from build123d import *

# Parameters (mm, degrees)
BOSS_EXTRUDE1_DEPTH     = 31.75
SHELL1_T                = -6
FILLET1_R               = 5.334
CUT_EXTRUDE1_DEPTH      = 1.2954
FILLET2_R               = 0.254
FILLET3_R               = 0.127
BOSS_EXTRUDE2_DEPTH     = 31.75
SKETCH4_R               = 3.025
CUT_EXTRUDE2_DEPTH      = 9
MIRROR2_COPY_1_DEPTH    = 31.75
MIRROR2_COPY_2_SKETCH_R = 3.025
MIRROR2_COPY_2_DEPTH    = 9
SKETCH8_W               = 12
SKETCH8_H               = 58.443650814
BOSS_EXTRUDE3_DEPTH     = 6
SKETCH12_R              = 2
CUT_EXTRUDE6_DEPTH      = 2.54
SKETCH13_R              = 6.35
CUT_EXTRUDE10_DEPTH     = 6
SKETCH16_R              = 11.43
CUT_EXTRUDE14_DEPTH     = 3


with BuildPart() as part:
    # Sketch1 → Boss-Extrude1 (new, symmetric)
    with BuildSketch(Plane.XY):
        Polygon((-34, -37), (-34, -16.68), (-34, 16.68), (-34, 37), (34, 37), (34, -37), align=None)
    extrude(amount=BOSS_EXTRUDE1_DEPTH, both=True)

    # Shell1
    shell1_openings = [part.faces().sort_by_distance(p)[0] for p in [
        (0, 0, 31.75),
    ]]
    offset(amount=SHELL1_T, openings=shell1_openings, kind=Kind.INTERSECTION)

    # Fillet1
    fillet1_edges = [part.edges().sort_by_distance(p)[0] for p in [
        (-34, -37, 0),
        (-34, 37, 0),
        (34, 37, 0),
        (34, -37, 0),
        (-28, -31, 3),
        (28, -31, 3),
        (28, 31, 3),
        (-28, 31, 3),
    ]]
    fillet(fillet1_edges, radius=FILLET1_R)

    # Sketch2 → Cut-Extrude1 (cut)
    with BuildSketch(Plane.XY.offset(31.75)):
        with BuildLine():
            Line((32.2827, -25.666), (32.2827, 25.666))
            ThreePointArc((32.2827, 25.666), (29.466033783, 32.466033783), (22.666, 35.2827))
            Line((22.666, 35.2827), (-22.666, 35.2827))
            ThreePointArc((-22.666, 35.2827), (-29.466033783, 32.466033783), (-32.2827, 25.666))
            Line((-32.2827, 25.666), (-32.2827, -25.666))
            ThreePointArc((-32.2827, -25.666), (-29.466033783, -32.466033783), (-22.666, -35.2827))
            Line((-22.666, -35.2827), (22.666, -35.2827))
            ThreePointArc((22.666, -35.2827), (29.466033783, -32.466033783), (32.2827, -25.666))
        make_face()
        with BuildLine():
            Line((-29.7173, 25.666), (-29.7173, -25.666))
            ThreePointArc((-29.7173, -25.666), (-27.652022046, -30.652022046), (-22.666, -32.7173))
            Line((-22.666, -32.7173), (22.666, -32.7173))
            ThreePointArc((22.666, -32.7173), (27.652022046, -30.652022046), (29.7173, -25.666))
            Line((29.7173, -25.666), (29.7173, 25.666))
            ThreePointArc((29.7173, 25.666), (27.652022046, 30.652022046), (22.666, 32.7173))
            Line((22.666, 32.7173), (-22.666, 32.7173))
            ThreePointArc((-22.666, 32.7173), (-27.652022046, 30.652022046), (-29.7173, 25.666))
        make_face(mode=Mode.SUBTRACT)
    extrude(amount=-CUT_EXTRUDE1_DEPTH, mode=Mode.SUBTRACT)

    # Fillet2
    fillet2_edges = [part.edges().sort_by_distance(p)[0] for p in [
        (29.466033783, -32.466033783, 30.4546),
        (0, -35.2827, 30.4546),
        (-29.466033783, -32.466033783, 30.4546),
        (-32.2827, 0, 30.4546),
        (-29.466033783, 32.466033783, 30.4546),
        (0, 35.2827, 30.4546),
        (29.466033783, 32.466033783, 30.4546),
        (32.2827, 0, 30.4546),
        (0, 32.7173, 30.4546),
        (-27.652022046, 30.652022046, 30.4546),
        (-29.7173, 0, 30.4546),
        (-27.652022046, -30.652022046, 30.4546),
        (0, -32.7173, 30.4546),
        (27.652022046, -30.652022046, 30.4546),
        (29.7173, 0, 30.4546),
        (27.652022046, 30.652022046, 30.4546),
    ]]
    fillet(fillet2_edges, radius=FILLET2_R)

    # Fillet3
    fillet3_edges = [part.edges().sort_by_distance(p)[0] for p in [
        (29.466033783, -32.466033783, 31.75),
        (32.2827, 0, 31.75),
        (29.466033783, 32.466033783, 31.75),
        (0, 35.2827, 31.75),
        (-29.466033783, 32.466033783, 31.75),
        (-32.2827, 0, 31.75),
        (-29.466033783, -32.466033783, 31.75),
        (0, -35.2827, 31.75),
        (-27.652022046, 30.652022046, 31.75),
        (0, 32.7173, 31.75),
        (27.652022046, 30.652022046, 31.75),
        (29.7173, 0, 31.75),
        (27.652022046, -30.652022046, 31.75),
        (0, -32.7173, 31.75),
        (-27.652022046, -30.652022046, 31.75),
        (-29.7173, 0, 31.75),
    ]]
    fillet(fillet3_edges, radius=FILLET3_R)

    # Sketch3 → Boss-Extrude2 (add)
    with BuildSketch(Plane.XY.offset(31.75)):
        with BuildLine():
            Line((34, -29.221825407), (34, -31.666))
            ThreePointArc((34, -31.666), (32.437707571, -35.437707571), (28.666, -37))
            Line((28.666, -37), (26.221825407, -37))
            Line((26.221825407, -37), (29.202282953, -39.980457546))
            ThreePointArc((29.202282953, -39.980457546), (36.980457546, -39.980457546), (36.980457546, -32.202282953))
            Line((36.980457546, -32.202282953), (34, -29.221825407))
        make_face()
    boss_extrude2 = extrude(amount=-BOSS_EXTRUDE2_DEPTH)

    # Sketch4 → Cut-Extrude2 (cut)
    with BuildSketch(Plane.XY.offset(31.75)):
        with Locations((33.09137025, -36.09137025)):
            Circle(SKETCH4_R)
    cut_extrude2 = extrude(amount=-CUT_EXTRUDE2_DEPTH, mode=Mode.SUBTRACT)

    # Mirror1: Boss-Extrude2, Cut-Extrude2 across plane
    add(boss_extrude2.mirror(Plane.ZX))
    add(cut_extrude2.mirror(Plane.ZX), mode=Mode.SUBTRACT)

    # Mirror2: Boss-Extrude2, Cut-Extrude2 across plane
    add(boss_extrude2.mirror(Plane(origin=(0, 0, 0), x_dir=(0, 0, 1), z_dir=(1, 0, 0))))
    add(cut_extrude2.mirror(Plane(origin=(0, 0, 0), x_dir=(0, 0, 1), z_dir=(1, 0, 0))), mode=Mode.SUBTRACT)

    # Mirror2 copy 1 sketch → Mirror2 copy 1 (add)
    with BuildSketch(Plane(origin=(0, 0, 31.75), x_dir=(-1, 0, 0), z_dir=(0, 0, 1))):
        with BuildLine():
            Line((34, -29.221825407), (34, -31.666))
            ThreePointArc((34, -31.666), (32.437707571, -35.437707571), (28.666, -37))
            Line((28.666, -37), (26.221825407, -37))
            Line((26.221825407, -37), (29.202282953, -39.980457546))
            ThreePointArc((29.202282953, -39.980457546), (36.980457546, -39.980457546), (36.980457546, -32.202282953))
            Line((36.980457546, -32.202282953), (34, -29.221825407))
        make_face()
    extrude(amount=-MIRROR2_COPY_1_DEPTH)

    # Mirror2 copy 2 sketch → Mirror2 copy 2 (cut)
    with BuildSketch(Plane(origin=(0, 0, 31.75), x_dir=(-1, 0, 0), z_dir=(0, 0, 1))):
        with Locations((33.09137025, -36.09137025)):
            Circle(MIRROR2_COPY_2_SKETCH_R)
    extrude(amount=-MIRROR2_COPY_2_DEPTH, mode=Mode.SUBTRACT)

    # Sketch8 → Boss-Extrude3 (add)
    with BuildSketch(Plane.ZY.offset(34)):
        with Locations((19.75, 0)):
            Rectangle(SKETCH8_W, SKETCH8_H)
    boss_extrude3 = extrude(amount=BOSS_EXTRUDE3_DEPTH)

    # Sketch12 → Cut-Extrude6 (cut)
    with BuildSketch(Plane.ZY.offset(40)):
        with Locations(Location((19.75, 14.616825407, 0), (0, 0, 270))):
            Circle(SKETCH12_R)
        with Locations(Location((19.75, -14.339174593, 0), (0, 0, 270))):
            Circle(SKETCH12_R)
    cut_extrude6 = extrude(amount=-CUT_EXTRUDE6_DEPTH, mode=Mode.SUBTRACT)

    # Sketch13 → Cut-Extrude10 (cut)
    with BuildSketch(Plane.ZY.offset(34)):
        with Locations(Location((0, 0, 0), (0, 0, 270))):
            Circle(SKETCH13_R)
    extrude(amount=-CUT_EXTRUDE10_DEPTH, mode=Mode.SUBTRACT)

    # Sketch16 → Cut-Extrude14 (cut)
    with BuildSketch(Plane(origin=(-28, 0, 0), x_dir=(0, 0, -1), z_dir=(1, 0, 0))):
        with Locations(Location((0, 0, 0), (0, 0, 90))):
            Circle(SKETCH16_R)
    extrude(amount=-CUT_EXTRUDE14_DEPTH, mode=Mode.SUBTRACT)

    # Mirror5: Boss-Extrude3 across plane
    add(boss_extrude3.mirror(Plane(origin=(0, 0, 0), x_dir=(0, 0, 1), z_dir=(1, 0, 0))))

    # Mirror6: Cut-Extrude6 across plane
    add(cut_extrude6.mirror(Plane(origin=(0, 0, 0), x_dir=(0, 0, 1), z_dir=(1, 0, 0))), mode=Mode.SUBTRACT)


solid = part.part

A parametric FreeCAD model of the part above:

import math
import FreeCAD as App
import Part
import Sketcher
from FreeCAD import Vector
Q = App.Units.Quantity


def edges_at(feature, points):
    """Names of the edges that pass closest to the given points."""
    edges = feature.Shape.Edges
    near = lambda p: min(range(len(edges)), key=lambda i: edges[i].distToShape(Part.Vertex(*p))[0])
    return sorted({f"Edge{near(p) + 1}" for p in points})


def faces_at(feature, points):
    """Names of the faces that lie closest to the given points."""
    faces = feature.Shape.Faces
    near = lambda p: min(range(len(faces)), key=lambda i: faces[i].distToShape(Part.Vertex(*p))[0])
    return sorted({f"Face{near(p) + 1}" for p in points})

doc = App.newDocument("Part")
body = doc.addObject("PartDesign::Body", "Body")

# Sketch on XY plane
sketch1 = body.newObject("Sketcher::SketchObject", "Sketch")
sketch1.AttachmentSupport = (doc.getObject("XY_Plane"), [""])
sketch1.MapMode = "FlatFace"
sketch1.addGeometry(Part.LineSegment(Vector(-34, 37, 0), Vector(-34, -37, 0)), False)
sketch1.addGeometry(Part.LineSegment(Vector(-34, -37, 0), Vector(34, -37, 0)), False)
sketch1.addGeometry(Part.LineSegment(Vector(34, -37, 0), Vector(34, 37, 0)), False)
sketch1.addGeometry(Part.LineSegment(Vector(34, 37, 0), Vector(-34, 37, 0)), False)
sketch1.addConstraint(Sketcher.Constraint("Coincident", 0, 2, 1, 1))
sketch1.addConstraint(Sketcher.Constraint("Coincident", 1, 2, 2, 1))
sketch1.addConstraint(Sketcher.Constraint("Coincident", 2, 2, 3, 1))
sketch1.addConstraint(Sketcher.Constraint("Coincident", 3, 2, 0, 1))
sketch1.addConstraint(Sketcher.Constraint("Vertical", 0))
sketch1.addConstraint(Sketcher.Constraint("Horizontal", 1))
sketch1.addConstraint(Sketcher.Constraint("Vertical", 2))
sketch1.addConstraint(Sketcher.Constraint("Horizontal", 3))
sketch1.addConstraint(Sketcher.Constraint("Symmetric", 0, 2, 2, 2, -1, 1))
sketch1.addConstraint(Sketcher.Constraint("DistanceX", 1, 1, 1, 2, Q("68 mm")))
sketch1.addConstraint(Sketcher.Constraint("DistanceY", 0, 2, 0, 1, Q("74 mm")))
pad1 = body.newObject("PartDesign::Pad", "Pad")
pad1.Profile = sketch1
pad1.Length = Q("2.5 in")
pad1.Midplane = True
doc.recompute()

thickness = body.newObject("PartDesign::Thickness", "Thickness")
thickness.Base = (pad1, faces_at(pad1, [(0, 0, 31.75)]))
thickness.Value = 6
thickness.Reversed = True
thickness.Join = "Intersection"
doc.recompute()

fillet = body.newObject("PartDesign::Fillet", "Fillet")
fillet.Base = (thickness, edges_at(thickness, [
    (-34, -37, 0),
    (-34, 37, 0),
    (34, 37, 0),
    (34, -37, 0),
    (-28, -31, 3),
    (28, -31, 3),
    (28, 31, 3),
    (-28, 31, 3),
]))
fillet.Radius = Q("0.21 in")

# Sketch on XY plane
sketch2 = body.newObject("Sketcher::SketchObject", "Sketch001")
sketch2.AttachmentSupport = (doc.getObject("XY_Plane"), [""])
sketch2.MapMode = "FlatFace"
sketch2.AttachmentOffset = App.Placement(Vector(0, 0, 1.25 * 25.4), App.Rotation())
sketch2.addGeometry(Part.LineSegment(Vector(32.2827, -25.666, 0), Vector(32.2827, 25.666, 0)), False)
sketch2.addGeometry(Part.ArcOfCircle(Part.Circle(Vector(22.666, 25.666, 0), Vector(0, 0, 1), 9.6167), math.radians(0), math.radians(90)), False)
sketch2.addGeometry(Part.LineSegment(Vector(22.666, 35.2827, 0), Vector(-22.666, 35.2827, 0)), False)
sketch2.addGeometry(Part.ArcOfCircle(Part.Circle(Vector(-22.666, 25.666, 0), Vector(0, 0, 1), 9.6167), math.radians(90), math.radians(180)), False)
sketch2.addGeometry(Part.LineSegment(Vector(-32.2827, 25.666, 0), Vector(-32.2827, -25.666, 0)), False)
sketch2.addGeometry(Part.ArcOfCircle(Part.Circle(Vector(-22.666, -25.666, 0), Vector(0, 0, 1), 9.6167), math.radians(180), math.radians(270)), False)
sketch2.addGeometry(Part.LineSegment(Vector(-22.666, -35.2827, 0), Vector(22.666, -35.2827, 0)), False)
sketch2.addGeometry(Part.ArcOfCircle(Part.Circle(Vector(22.666, -25.666, 0), Vector(0, 0, 1), 9.6167), math.radians(-90), math.radians(0)), False)
sketch2.addGeometry(Part.LineSegment(Vector(-29.7173, -25.666, 0), Vector(-29.7173, 25.666, 0)), False)
sketch2.addGeometry(Part.ArcOfCircle(Part.Circle(Vector(-22.666, 25.666, 0), Vector(0, 0, 1), 7.0513), math.radians(90), math.radians(180)), False)
sketch2.addGeometry(Part.LineSegment(Vector(-22.666, 32.7173, 0), Vector(22.666, 32.7173, 0)), False)
sketch2.addGeometry(Part.ArcOfCircle(Part.Circle(Vector(22.666, 25.666, 0), Vector(0, 0, 1), 7.0513), math.radians(0), math.radians(90)), False)
sketch2.addGeometry(Part.LineSegment(Vector(29.7173, 25.666, 0), Vector(29.7173, -25.666, 0)), False)
sketch2.addGeometry(Part.ArcOfCircle(Part.Circle(Vector(22.666, -25.666, 0), Vector(0, 0, 1), 7.0513), math.radians(-90), math.radians(0)), False)
sketch2.addGeometry(Part.LineSegment(Vector(22.666, -32.7173, 0), Vector(-22.666, -32.7173, 0)), False)
sketch2.addGeometry(Part.ArcOfCircle(Part.Circle(Vector(-22.666, -25.666, 0), Vector(0, 0, 1), 7.0513), math.radians(-180), math.radians(-90)), False)
sketch2.addConstraint(Sketcher.Constraint("Tangent", 0, 2, 1, 1))
sketch2.addConstraint(Sketcher.Constraint("Tangent", 1, 2, 2, 1))
sketch2.addConstraint(Sketcher.Constraint("Tangent", 2, 2, 3, 1))
sketch2.addConstraint(Sketcher.Constraint("Tangent", 3, 2, 4, 1))
sketch2.addConstraint(Sketcher.Constraint("Tangent", 4, 2, 5, 1))
sketch2.addConstraint(Sketcher.Constraint("Tangent", 5, 2, 6, 1))
sketch2.addConstraint(Sketcher.Constraint("Tangent", 6, 2, 7, 1))
sketch2.addConstraint(Sketcher.Constraint("Tangent", 7, 2, 0, 1))
sketch2.addConstraint(Sketcher.Constraint("Tangent", 8, 2, 9, 2))
sketch2.addConstraint(Sketcher.Constraint("Tangent", 9, 1, 10, 1))
sketch2.addConstraint(Sketcher.Constraint("Tangent", 10, 2, 11, 2))
sketch2.addConstraint(Sketcher.Constraint("Tangent", 11, 1, 12, 1))
sketch2.addConstraint(Sketcher.Constraint("Tangent", 12, 2, 13, 2))
sketch2.addConstraint(Sketcher.Constraint("Tangent", 13, 1, 14, 1))
sketch2.addConstraint(Sketcher.Constraint("Tangent", 14, 2, 15, 2))
sketch2.addConstraint(Sketcher.Constraint("Tangent", 15, 1, 8, 1))
sketch2.addConstraint(Sketcher.Constraint("Vertical", 0))
sketch2.addConstraint(Sketcher.Constraint("Horizontal", 2))
sketch2.addConstraint(Sketcher.Constraint("Vertical", 4))
sketch2.addConstraint(Sketcher.Constraint("Horizontal", 6))
sketch2.addConstraint(Sketcher.Constraint("Vertical", 8))
sketch2.addConstraint(Sketcher.Constraint("Horizontal", 10))
sketch2.addConstraint(Sketcher.Constraint("Vertical", 12))
sketch2.addConstraint(Sketcher.Constraint("Horizontal", 14))
sketch2.addConstraint(Sketcher.Constraint("Coincident", 9, 3, 3, 3))
sketch2.addConstraint(Sketcher.Constraint("Coincident", 11, 3, 1, 3))
sketch2.addConstraint(Sketcher.Constraint("Coincident", 13, 3, 7, 3))
sketch2.addConstraint(Sketcher.Constraint("Equal", 1, 3))
sketch2.addConstraint(Sketcher.Constraint("Equal", 3, 5))
sketch2.addConstraint(Sketcher.Constraint("Equal", 5, 7))
sketch2.addConstraint(Sketcher.Constraint("Equal", 13, 15))
sketch2.addConstraint(Sketcher.Constraint("Symmetric", 1, 3, 5, 3, -1, 1))
sketch2.addConstraint(Sketcher.Constraint("Radius", 1, Q("9.6167 mm")))
sketch2.addConstraint(Sketcher.Constraint("Radius", 9, Q("7.0513 mm")))
sketch2.addConstraint(Sketcher.Constraint("DistanceX", 2, 2, 2, 1, Q("45.332 mm")))
sketch2.addConstraint(Sketcher.Constraint("DistanceY", 0, 1, 0, 2, Q("51.332 mm")))
pocket1 = body.newObject("PartDesign::Pocket", "Pocket")
pocket1.Profile = sketch2
pocket1.Length = Q("0.051 in")
doc.recompute()

fillet2 = body.newObject("PartDesign::Fillet", "Fillet001")
fillet2.Base = (pocket1, edges_at(pocket1, [
    (29.466, -32.466, 30.455),
    (0, -35.283, 30.455),
    (-29.466, -32.466, 30.455),
    (-32.283, 0, 30.455),
    (-29.466, 32.466, 30.455),
    (0, 35.283, 30.455),
    (29.466, 32.466, 30.455),
    (32.283, 0, 30.455),
    (0, 32.717, 30.455),
    (-27.652, 30.652, 30.455),
    (-29.717, 0, 30.455),
    (-27.652, -30.652, 30.455),
    (0, -32.717, 30.455),
    (27.652, -30.652, 30.455),
    (29.717, 0, 30.455),
    (27.652, 30.652, 30.455),
]))
fillet2.Radius = Q("0.01 in")
doc.recompute()

fillet3 = body.newObject("PartDesign::Fillet", "Fillet002")
fillet3.Base = (fillet2, edges_at(fillet2, [
    (29.466, -32.466, 31.75),
    (32.283, 0, 31.75),
    (29.466, 32.466, 31.75),
    (0, 35.283, 31.75),
    (-29.466, 32.466, 31.75),
    (-32.283, 0, 31.75),
    (-29.466, -32.466, 31.75),
    (0, -35.283, 31.75),
    (-27.652, 30.652, 31.75),
    (0, 32.717, 31.75),
    (27.652, 30.652, 31.75),
    (29.717, 0, 31.75),
    (27.652, -30.652, 31.75),
    (0, -32.717, 31.75),
    (-27.652, -30.652, 31.75),
    (-29.717, 0, 31.75),
]))
fillet3.Radius = Q("0.005 in")

# Sketch on XY plane
sketch3 = body.newObject("Sketcher::SketchObject", "Sketch002")
sketch3.AttachmentSupport = (doc.getObject("XY_Plane"), [""])
sketch3.MapMode = "FlatFace"
sketch3.AttachmentOffset = App.Placement(Vector(0, 0, 1.25 * 25.4), App.Rotation())
sketch3.addGeometry(Part.LineSegment(Vector(34, -29.221825, 0), Vector(34, -31.666, 0)), False)
sketch3.addGeometry(Part.ArcOfCircle(Part.Circle(Vector(28.666, -31.666, 0), Vector(0, 0, 1), 5.334), math.radians(-90), math.radians(0)), False)
sketch3.addGeometry(Part.LineSegment(Vector(28.666, -37, 0), Vector(26.221825, -37, 0)), False)
sketch3.addGeometry(Part.LineSegment(Vector(26.221825, -37, 0), Vector(29.202283, -39.980458, 0)), False)
sketch3.addGeometry(Part.ArcOfCircle(Part.Circle(Vector(33.09137, -36.09137, 0), Vector(0, 0, 1), 5.5), math.radians(-135), math.radians(45)), False)
sketch3.addGeometry(Part.LineSegment(Vector(36.980458, -32.202283, 0), Vector(34, -29.221825, 0)), False)
sketch3.addConstraint(Sketcher.Constraint("Tangent", 0, 2, 1, 2))
sketch3.addConstraint(Sketcher.Constraint("Tangent", 1, 1, 2, 1))
sketch3.addConstraint(Sketcher.Constraint("Coincident", 2, 2, 3, 1))
sketch3.addConstraint(Sketcher.Constraint("Tangent", 3, 2, 4, 1))
sketch3.addConstraint(Sketcher.Constraint("Tangent", 4, 2, 5, 1))
sketch3.addConstraint(Sketcher.Constraint("Coincident", 5, 2, 0, 1))
sketch3.addConstraint(Sketcher.Constraint("Vertical", 0))
sketch3.addConstraint(Sketcher.Constraint("Horizontal", 2))
sketch3.addConstraint(Sketcher.Constraint("Parallel", 3, 5))
sketch3.addConstraint(Sketcher.Constraint("Equal", 2, 0))
sketch3.addConstraint(Sketcher.Constraint("Equal", 3, 5))
sketch3.addConstraint(Sketcher.Constraint("Radius", 1, Q("0.21 in")))
sketch3.addConstraint(Sketcher.Constraint("Radius", 4, Q("5.5 mm")))
sketch3.addConstraint(Sketcher.Constraint("DistanceX", -1, 1, 1, 3, Q("28.666 mm")))
sketch3.addConstraint(Sketcher.Constraint("DistanceY", 1, 3, -1, 1, Q("31.666 mm")))
sketch3.addConstraint(Sketcher.Constraint("DistanceX", -1, 1, 4, 3, Q("33.09137 mm")))
pad2 = body.newObject("PartDesign::Pad", "Pad001")
pad2.Profile = sketch3
pad2.Length = Q("1.25 in")
pad2.Reversed = True

# Sketch on XY plane
sketch4 = body.newObject("Sketcher::SketchObject", "Sketch003")
sketch4.AttachmentSupport = (doc.getObject("XY_Plane"), [""])
sketch4.MapMode = "FlatFace"
sketch4.AttachmentOffset = App.Placement(Vector(0, 0, 1.25 * 25.4), App.Rotation())
sketch4.addGeometry(Part.Circle(Vector(33.09137, -36.09137, 0), Vector(0, 0, 1), 3.025), False)
sketch4.addConstraint(Sketcher.Constraint("Diameter", 0, Q("6.05 mm")))
sketch4.addConstraint(Sketcher.Constraint("DistanceX", -1, 1, 0, 3, Q("33.09137 mm")))
sketch4.addConstraint(Sketcher.Constraint("DistanceY", 0, 3, -1, 1, Q("36.09137 mm")))
pocket2 = body.newObject("PartDesign::Pocket", "Pocket001")
pocket2.Profile = sketch4
pocket2.Length = 9
doc.recompute()

mirrored = body.newObject("PartDesign::Mirrored", "Mirrored")
mirrored.Originals = [pad2, pocket2]
mirrored.MirrorPlane = (doc.getObject("XZ_Plane"), [""])
body.Tip = mirrored
doc.recompute()

mirrored2 = body.newObject("PartDesign::Mirrored", "Mirrored001")
mirrored2.Originals = [pad2, pocket2]
mirrored2.MirrorPlane = (doc.getObject("YZ_Plane"), [""])
body.Tip = mirrored2

# Sketch on XY plane
sketch5 = body.newObject("Sketcher::SketchObject", "Sketch004")
sketch5.AttachmentSupport = (doc.getObject("XY_Plane"), [""])
sketch5.MapMode = "FlatFace"
sketch5.AttachmentOffset = App.Placement(Vector(0, 0, 1.25 * 25.4), App.Rotation())
sketch5.addGeometry(Part.LineSegment(Vector(-34, 29.221825, 0), Vector(-34, 31.666, 0)), False)
sketch5.addGeometry(Part.ArcOfCircle(Part.Circle(Vector(-28.666, 31.666, 0), Vector(0, 0, 1), 5.334), math.radians(90), math.radians(180)), False)
sketch5.addGeometry(Part.LineSegment(Vector(-28.666, 37, 0), Vector(-26.221825, 37, 0)), False)
sketch5.addGeometry(Part.LineSegment(Vector(-26.221825, 37, 0), Vector(-29.202283, 39.980458, 0)), False)
sketch5.addGeometry(Part.ArcOfCircle(Part.Circle(Vector(-33.09137, 36.09137, 0), Vector(0, 0, 1), 5.5), math.radians(45), math.radians(225)), False)
sketch5.addGeometry(Part.LineSegment(Vector(-36.980458, 32.202283, 0), Vector(-34, 29.221825, 0)), False)
sketch5.addConstraint(Sketcher.Constraint("Tangent", 0, 2, 1, 2))
sketch5.addConstraint(Sketcher.Constraint("Tangent", 1, 1, 2, 1))
sketch5.addConstraint(Sketcher.Constraint("Coincident", 2, 2, 3, 1))
sketch5.addConstraint(Sketcher.Constraint("Tangent", 3, 2, 4, 1))
sketch5.addConstraint(Sketcher.Constraint("Tangent", 4, 2, 5, 1))
sketch5.addConstraint(Sketcher.Constraint("Coincident", 5, 2, 0, 1))
sketch5.addConstraint(Sketcher.Constraint("Vertical", 0))
sketch5.addConstraint(Sketcher.Constraint("Horizontal", 2))
sketch5.addConstraint(Sketcher.Constraint("Parallel", 3, 5))
sketch5.addConstraint(Sketcher.Constraint("Equal", 2, 0))
sketch5.addConstraint(Sketcher.Constraint("Equal", 3, 5))
sketch5.addConstraint(Sketcher.Constraint("Radius", 1, Q("0.21 in")))
sketch5.addConstraint(Sketcher.Constraint("Radius", 4, Q("5.5 mm")))
sketch5.addConstraint(Sketcher.Constraint("DistanceX", 1, 3, -1, 1, Q("28.666 mm")))
sketch5.addConstraint(Sketcher.Constraint("DistanceY", -1, 1, 1, 3, Q("31.666 mm")))
sketch5.addConstraint(Sketcher.Constraint("DistanceX", 4, 3, -1, 1, Q("33.09137 mm")))
pad3 = body.newObject("PartDesign::Pad", "Pad002")
pad3.Profile = sketch5
pad3.Length = Q("1.25 in")
pad3.Reversed = True

# Sketch on XY plane
sketch6 = body.newObject("Sketcher::SketchObject", "Sketch005")
sketch6.AttachmentSupport = (doc.getObject("XY_Plane"), [""])
sketch6.MapMode = "FlatFace"
sketch6.AttachmentOffset = App.Placement(Vector(0, 0, 1.25 * 25.4), App.Rotation())
sketch6.addGeometry(Part.Circle(Vector(-33.09137, 36.09137, 0), Vector(0, 0, 1), 3.025), False)
sketch6.addConstraint(Sketcher.Constraint("Diameter", 0, Q("6.05 mm")))
sketch6.addConstraint(Sketcher.Constraint("DistanceX", 0, 3, -1, 1, Q("33.09137 mm")))
sketch6.addConstraint(Sketcher.Constraint("DistanceY", -1, 1, 0, 3, Q("36.09137 mm")))
pocket3 = body.newObject("PartDesign::Pocket", "Pocket002")
pocket3.Profile = sketch6
pocket3.Length = 9

# Sketch on YZ plane
sketch7 = body.newObject("Sketcher::SketchObject", "Sketch006")
sketch7.AttachmentSupport = (doc.getObject("YZ_Plane"), [""])
sketch7.MapMode = "FlatFace"
sketch7.AttachmentOffset = App.Placement(Vector(0, 0, -34), App.Rotation())
sketch7.addGeometry(Part.LineSegment(Vector(29.221825, 13.75, 0), Vector(-29.221825, 13.75, 0)), False)
sketch7.addGeometry(Part.LineSegment(Vector(-29.221825, 13.75, 0), Vector(-29.221825, 25.75, 0)), False)
sketch7.addGeometry(Part.LineSegment(Vector(-29.221825, 25.75, 0), Vector(29.221825, 25.75, 0)), False)
sketch7.addGeometry(Part.LineSegment(Vector(29.221825, 25.75, 0), Vector(29.221825, 13.75, 0)), False)
sketch7.addConstraint(Sketcher.Constraint("Coincident", 0, 2, 1, 1))
sketch7.addConstraint(Sketcher.Constraint("Coincident", 1, 2, 2, 1))
sketch7.addConstraint(Sketcher.Constraint("Coincident", 2, 2, 3, 1))
sketch7.addConstraint(Sketcher.Constraint("Coincident", 3, 2, 0, 1))
sketch7.addConstraint(Sketcher.Constraint("Horizontal", 0))
sketch7.addConstraint(Sketcher.Constraint("Vertical", 1))
sketch7.addConstraint(Sketcher.Constraint("Horizontal", 2))
sketch7.addConstraint(Sketcher.Constraint("Vertical", 3))
sketch7.addConstraint(Sketcher.Constraint("DistanceY", 1, 1, 1, 2, Q("12 mm")))
sketch7.addConstraint(Sketcher.Constraint("DistanceX", 0, 2, 0, 1, Q("58.443651 mm")))
sketch7.addConstraint(Sketcher.Constraint("DistanceY", -1, 1, 0, 2, Q("13.75 mm")))
sketch7.addConstraint(Sketcher.Constraint("DistanceX", 0, 2, -1, 1, Q("29.221825 mm")))
pad4 = body.newObject("PartDesign::Pad", "Pad003")
pad4.Profile = sketch7
pad4.Length = 6
pad4.Reversed = True

# Sketch on YZ plane
sketch8 = body.newObject("Sketcher::SketchObject", "Sketch007")
sketch8.AttachmentSupport = (doc.getObject("YZ_Plane"), [""])
sketch8.MapMode = "FlatFace"
sketch8.AttachmentOffset = App.Placement(Vector(0, 0, -40), App.Rotation())
sketch8.addGeometry(Part.Circle(Vector(14.616825, 19.75, 0), Vector(0, 0, 1), 2), False)
sketch8.addGeometry(Part.Circle(Vector(-14.339175, 19.75, 0), Vector(0, 0, 1), 2), False)
sketch8.addConstraint(Sketcher.Constraint("Equal", 0, 1))
sketch8.addConstraint(Sketcher.Constraint("Horizontal", 0, 3, 1, 3))
sketch8.addConstraint(Sketcher.Constraint("Diameter", 0, Q("4 mm")))
sketch8.addConstraint(Sketcher.Constraint("DistanceX", 1, 3, 0, 3, Q("1.14 in")))
sketch8.addConstraint(Sketcher.Constraint("DistanceY", -1, 1, 0, 3, Q("19.75 mm")))
sketch8.addConstraint(Sketcher.Constraint("DistanceX", -1, 1, 0, 3, Q("14.616825 mm")))
pocket4 = body.newObject("PartDesign::Pocket", "Pocket003")
pocket4.Profile = sketch8
pocket4.Length = Q("0.1 in")
pocket4.Reversed = True

# Sketch on YZ plane
sketch9 = body.newObject("Sketcher::SketchObject", "Sketch008")
sketch9.AttachmentSupport = (doc.getObject("YZ_Plane"), [""])
sketch9.MapMode = "FlatFace"
sketch9.AttachmentOffset = App.Placement(Vector(0, 0, -34), App.Rotation())
sketch9.addGeometry(Part.Circle(Vector(0, 0, 0), Vector(0, 0, 1), 6.35), False)
sketch9.addConstraint(Sketcher.Constraint("Coincident", 0, 3, -1, 1))
sketch9.addConstraint(Sketcher.Constraint("Diameter", 0, Q("0.5 in")))
pocket5 = body.newObject("PartDesign::Pocket", "Pocket004")
pocket5.Profile = sketch9
pocket5.Length = 6
pocket5.Reversed = True

# Sketch on YZ plane
sketch10 = body.newObject("Sketcher::SketchObject", "Sketch009")
sketch10.AttachmentSupport = (doc.getObject("YZ_Plane"), [""])
sketch10.MapMode = "FlatFace"
sketch10.AttachmentOffset = App.Placement(Vector(0, 0, -28), App.Rotation())
sketch10.addGeometry(Part.Circle(Vector(0, 0, 0), Vector(0, 0, 1), 11.43), False)
sketch10.addConstraint(Sketcher.Constraint("Coincident", 0, 3, -1, 1))
sketch10.addConstraint(Sketcher.Constraint("Diameter", 0, Q("0.9 in")))
pocket6 = body.newObject("PartDesign::Pocket", "Pocket005")
pocket6.Profile = sketch10
pocket6.Length = 3
doc.recompute()

mirrored3 = body.newObject("PartDesign::Mirrored", "Mirrored002")
mirrored3.Originals = [pad4]
mirrored3.MirrorPlane = (doc.getObject("YZ_Plane"), [""])
body.Tip = mirrored3
doc.recompute()

mirrored4 = body.newObject("PartDesign::Mirrored", "Mirrored003")
mirrored4.Originals = [pocket4]
mirrored4.MirrorPlane = (doc.getObject("YZ_Plane"), [""])
body.Tip = mirrored4

doc.recompute()
